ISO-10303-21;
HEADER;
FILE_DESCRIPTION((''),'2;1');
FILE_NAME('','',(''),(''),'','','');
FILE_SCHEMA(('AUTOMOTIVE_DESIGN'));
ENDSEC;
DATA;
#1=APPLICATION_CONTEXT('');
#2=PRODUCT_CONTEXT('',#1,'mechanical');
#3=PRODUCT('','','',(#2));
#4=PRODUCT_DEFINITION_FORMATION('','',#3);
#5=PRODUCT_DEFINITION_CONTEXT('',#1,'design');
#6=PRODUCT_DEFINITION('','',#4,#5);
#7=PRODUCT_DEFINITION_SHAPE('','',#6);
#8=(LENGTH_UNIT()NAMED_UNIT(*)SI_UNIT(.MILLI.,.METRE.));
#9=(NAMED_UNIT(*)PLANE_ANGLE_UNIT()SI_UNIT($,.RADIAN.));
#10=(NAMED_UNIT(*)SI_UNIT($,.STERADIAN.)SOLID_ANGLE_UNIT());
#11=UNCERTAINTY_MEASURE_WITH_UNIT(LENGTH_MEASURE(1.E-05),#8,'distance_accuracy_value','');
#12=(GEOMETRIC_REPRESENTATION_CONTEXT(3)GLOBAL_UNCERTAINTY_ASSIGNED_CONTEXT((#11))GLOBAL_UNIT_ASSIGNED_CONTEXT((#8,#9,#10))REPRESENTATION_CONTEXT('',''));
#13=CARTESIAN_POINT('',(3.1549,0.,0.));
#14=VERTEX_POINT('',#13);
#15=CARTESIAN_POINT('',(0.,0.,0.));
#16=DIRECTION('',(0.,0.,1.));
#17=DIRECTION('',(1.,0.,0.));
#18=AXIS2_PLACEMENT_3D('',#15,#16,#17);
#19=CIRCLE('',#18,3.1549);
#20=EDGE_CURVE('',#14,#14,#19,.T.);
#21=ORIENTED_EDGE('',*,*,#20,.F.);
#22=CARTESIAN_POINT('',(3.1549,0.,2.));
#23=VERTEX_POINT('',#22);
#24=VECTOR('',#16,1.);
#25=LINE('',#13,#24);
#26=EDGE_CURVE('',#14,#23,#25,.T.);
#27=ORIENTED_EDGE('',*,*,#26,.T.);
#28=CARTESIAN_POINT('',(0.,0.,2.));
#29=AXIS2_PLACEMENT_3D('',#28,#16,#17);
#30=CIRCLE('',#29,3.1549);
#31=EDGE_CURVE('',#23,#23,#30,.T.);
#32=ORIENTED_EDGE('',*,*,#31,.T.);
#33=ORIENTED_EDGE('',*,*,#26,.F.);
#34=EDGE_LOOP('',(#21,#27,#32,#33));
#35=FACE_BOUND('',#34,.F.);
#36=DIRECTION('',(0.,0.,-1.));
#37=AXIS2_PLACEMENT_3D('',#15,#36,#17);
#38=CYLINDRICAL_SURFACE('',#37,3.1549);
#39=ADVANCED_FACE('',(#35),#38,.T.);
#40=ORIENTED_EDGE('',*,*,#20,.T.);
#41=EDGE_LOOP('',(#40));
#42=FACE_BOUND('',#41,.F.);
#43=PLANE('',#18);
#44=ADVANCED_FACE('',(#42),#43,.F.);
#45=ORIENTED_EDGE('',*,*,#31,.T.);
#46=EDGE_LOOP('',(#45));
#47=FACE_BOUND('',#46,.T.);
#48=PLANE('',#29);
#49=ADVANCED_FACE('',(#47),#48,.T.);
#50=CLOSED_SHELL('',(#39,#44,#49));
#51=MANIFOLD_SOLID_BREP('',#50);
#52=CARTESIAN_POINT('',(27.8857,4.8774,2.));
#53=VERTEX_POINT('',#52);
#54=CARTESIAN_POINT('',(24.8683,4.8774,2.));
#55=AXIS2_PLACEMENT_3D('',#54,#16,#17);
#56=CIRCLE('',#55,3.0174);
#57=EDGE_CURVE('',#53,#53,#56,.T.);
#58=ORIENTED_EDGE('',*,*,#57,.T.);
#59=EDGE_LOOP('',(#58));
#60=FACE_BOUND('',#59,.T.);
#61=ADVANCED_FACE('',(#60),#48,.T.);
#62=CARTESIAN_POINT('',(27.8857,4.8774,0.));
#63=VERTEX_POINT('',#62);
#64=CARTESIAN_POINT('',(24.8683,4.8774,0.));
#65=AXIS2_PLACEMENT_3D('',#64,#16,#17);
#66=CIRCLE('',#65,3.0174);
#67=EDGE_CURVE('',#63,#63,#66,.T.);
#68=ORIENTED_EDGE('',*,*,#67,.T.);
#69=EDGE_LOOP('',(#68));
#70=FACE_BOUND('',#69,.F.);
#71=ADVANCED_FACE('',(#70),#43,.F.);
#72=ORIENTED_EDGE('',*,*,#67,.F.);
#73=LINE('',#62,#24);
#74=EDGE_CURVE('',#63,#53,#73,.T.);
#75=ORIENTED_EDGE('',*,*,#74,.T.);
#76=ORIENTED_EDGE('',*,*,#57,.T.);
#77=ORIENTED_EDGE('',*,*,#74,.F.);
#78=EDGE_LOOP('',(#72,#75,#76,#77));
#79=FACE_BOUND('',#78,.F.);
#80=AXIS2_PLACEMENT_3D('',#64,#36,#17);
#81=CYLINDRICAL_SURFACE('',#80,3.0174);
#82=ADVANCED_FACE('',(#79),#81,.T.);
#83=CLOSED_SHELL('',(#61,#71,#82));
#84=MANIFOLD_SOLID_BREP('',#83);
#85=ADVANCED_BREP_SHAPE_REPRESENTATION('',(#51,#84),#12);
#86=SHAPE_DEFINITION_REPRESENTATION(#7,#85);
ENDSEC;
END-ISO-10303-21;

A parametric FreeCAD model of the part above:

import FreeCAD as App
import Part
import Sketcher
from FreeCAD import Vector
Q = App.Units.Quantity

doc = App.newDocument("Part")
body = doc.addObject("PartDesign::Body", "Body")
body.AllowCompound = True

# Sketch on XY plane
sketch1 = body.newObject("Sketcher::SketchObject", "Sketch")
sketch1.AttachmentSupport = (doc.getObject("XY_Plane"), [""])
sketch1.MapMode = "FlatFace"
sketch1.addGeometry(Part.Circle(Vector(0, 0, 0), Vector(0, 0, 1), 3.1549), False)
sketch1.addGeometry(Part.Circle(Vector(24.8683, 4.8774, 0), Vector(0, 0, 1), 3.0174), False)
sketch1.addConstraint(Sketcher.Constraint("Coincident", 0, 3, -1, 1))
sketch1.addConstraint(Sketcher.Constraint("Diameter", 0, Q("6.3098 mm")))
sketch1.addConstraint(Sketcher.Constraint("Diameter", 1, Q("6.0348 mm")))
sketch1.addConstraint(Sketcher.Constraint("DistanceX", -1, 1, 1, 3, Q("24.8683 mm")))
sketch1.addConstraint(Sketcher.Constraint("DistanceY", -1, 1, 1, 3, Q("4.8774 mm")))
pad1 = body.newObject("PartDesign::Pad", "Pad")
pad1.Profile = sketch1
pad1.Length = 2

doc.recompute()
